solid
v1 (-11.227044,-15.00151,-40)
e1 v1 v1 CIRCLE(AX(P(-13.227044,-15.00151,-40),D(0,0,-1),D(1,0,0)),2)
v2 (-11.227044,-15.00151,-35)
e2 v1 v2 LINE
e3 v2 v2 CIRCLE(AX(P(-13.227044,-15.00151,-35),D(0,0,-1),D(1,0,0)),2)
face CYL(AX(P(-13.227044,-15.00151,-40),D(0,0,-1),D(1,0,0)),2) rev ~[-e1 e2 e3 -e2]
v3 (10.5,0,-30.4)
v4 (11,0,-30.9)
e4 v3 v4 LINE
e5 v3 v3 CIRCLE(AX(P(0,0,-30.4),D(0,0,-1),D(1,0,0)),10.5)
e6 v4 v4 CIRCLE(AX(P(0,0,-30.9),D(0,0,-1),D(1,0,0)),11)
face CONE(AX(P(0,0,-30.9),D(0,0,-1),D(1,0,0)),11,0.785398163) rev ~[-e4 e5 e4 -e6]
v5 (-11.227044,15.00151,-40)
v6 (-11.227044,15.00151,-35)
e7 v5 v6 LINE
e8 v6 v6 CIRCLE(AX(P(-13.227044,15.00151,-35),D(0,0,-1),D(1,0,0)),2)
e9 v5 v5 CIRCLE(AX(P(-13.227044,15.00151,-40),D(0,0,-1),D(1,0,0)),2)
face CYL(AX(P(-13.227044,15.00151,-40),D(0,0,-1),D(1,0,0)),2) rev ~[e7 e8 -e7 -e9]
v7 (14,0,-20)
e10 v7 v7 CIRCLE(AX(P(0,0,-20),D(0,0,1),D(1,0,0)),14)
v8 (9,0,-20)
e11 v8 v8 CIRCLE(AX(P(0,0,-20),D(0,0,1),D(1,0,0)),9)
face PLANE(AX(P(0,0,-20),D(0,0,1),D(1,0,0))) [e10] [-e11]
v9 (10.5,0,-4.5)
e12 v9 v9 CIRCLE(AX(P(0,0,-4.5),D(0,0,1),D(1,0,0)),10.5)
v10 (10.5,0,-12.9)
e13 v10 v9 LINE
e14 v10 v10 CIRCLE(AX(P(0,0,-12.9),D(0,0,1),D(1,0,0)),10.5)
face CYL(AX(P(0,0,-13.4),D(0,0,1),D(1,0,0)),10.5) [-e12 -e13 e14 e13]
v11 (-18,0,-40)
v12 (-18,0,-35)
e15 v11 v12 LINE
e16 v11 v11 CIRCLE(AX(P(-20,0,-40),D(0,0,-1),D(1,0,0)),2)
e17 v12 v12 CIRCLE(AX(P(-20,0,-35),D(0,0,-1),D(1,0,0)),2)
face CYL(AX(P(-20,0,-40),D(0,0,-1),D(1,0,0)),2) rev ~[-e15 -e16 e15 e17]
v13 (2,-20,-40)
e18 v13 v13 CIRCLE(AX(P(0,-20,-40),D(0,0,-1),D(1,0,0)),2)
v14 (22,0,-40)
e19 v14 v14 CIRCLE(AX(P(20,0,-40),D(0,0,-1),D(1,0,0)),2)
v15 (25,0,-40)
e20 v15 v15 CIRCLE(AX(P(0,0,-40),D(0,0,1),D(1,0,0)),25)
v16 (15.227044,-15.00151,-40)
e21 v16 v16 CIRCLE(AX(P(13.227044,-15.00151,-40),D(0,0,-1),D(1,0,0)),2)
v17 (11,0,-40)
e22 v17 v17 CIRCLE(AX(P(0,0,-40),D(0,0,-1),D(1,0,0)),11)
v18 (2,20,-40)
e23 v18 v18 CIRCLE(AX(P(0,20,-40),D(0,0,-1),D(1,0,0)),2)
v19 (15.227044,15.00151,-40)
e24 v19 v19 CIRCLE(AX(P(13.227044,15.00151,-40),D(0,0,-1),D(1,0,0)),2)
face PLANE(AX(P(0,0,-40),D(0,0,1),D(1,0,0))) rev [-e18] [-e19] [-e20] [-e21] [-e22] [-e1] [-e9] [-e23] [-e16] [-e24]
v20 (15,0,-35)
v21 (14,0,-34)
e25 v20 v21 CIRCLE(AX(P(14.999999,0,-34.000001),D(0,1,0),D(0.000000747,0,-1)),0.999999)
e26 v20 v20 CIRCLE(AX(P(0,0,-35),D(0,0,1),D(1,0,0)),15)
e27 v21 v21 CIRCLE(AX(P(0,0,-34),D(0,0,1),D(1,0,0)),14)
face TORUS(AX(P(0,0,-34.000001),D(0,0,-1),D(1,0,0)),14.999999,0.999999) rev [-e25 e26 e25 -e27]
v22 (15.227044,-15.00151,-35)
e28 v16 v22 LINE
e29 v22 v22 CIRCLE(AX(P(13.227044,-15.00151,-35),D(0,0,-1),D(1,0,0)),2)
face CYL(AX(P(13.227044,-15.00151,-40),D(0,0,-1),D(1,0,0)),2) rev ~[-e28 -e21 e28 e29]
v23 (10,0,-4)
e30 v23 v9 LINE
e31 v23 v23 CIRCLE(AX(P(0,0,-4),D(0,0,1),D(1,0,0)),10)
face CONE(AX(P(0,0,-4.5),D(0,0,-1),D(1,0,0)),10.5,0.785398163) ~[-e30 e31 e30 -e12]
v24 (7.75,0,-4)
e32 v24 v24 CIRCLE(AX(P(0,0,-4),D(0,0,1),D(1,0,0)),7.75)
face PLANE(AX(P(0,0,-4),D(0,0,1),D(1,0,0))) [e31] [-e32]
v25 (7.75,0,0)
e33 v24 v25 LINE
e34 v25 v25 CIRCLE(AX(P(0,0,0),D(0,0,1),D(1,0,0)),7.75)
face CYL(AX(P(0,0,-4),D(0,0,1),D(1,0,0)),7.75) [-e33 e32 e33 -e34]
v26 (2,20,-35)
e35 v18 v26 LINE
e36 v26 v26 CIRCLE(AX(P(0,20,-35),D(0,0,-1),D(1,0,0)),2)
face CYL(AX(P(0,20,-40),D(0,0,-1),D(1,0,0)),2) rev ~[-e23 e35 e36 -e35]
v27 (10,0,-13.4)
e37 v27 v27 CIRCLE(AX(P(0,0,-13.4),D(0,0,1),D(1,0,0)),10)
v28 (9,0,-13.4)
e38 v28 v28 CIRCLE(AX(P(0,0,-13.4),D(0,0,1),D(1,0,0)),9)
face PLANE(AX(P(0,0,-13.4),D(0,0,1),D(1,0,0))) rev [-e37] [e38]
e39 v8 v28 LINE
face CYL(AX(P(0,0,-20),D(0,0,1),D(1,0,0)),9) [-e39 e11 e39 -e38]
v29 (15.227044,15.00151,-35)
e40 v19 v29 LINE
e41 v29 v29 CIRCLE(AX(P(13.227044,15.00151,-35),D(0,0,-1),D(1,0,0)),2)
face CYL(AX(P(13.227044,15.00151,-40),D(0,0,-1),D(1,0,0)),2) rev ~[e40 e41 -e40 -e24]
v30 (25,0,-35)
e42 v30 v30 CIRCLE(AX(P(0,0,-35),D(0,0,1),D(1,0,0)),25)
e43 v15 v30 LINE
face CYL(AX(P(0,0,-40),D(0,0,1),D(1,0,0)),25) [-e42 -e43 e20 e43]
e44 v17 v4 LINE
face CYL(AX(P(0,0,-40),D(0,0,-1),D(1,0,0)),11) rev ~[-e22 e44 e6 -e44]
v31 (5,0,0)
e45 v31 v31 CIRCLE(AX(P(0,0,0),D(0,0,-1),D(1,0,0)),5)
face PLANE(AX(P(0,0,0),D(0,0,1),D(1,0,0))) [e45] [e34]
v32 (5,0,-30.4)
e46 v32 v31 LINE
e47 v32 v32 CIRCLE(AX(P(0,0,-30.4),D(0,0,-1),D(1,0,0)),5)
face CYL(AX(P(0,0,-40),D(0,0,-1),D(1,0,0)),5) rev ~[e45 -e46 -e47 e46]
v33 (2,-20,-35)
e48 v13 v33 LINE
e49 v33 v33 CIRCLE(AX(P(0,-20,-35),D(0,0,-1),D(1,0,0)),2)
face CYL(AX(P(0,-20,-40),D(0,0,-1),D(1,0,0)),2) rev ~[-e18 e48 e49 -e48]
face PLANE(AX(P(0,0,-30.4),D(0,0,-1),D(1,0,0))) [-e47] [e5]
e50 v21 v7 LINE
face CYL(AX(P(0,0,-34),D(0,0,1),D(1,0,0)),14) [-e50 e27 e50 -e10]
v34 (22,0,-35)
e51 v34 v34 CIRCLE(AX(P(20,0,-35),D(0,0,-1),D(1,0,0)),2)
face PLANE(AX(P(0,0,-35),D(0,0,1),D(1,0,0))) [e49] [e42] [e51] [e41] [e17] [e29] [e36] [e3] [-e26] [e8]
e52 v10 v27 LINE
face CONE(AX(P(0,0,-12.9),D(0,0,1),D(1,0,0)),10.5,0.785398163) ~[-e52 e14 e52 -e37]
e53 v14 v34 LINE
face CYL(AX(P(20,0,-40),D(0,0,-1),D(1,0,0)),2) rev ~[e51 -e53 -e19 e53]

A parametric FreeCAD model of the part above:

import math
import FreeCAD as App
import Part
import Sketcher

V = App.Vector
Q = App.Units.Quantity


def edges_at(feature, points):
    """Names of the edges that pass closest to the given points."""
    edges = feature.Shape.Edges
    near = lambda p: min(range(len(edges)), key=lambda i: edges[i].distToShape(Part.Vertex(*p))[0])
    return sorted({f"Edge{near(p) + 1}" for p in points})

doc = App.newDocument("Part")
body = doc.addObject("PartDesign::Body", "Body")

# Sketch on XZ plane
sketch1 = doc.addObject("Sketcher::SketchObject", "Sketch")
body.addObject(sketch1)
sketch1.AttachmentSupport = (doc.XZ_Plane, [""])
sketch1.MapMode = "FlatFace"
sketch1.addGeometry(Part.LineSegment(V(7.8, 0, 0), V(0, 0, 0)), False)
sketch1.addGeometry(Part.LineSegment(V(0, 0, 0), V(0, -40, 0)), False)
sketch1.addGeometry(Part.LineSegment(V(0, -40, 0), V(25, -40, 0)), False)
sketch1.addGeometry(Part.LineSegment(V(25, -40, 0), V(25, -35, 0)), False)
sketch1.addGeometry(Part.LineSegment(V(25, -35, 0), V(15, -35, 0)), False)
sketch1.addGeometry(Part.ArcOfCircle(Part.Circle(V(15, -34, 0), V(0, 0, 1), 1), math.radians(180), math.radians(270)), False)
sketch1.addGeometry(Part.LineSegment(V(14, -34, 0), V(14, -20, 0)), False)
sketch1.addGeometry(Part.LineSegment(V(14, -20, 0), V(9, -20, 0)), False)
sketch1.addGeometry(Part.LineSegment(V(9, -20, 0), V(9, -13.4, 0)), False)
sketch1.addGeometry(Part.LineSegment(V(9, -13.4, 0), V(10.5, -13.4, 0)), False)
sketch1.addGeometry(Part.LineSegment(V(10.5, -13.4, 0), V(10.5, -4, 0)), False)
sketch1.addGeometry(Part.LineSegment(V(10.5, -4, 0), V(7.8, -4, 0)), False)
sketch1.addGeometry(Part.LineSegment(V(7.8, -4, 0), V(7.8, 0, 0)), False)
sketch1.addConstraint(Sketcher.Constraint("Coincident", 0, 2, 1, 1))
sketch1.addConstraint(Sketcher.Constraint("Coincident", 1, 2, 2, 1))
sketch1.addConstraint(Sketcher.Constraint("Coincident", 2, 2, 3, 1))
sketch1.addConstraint(Sketcher.Constraint("Coincident", 3, 2, 4, 1))
sketch1.addConstraint(Sketcher.Constraint("Tangent", 4, 2, 5, 2))
sketch1.addConstraint(Sketcher.Constraint("Tangent", 5, 1, 6, 1))
sketch1.addConstraint(Sketcher.Constraint("Coincident", 6, 2, 7, 1))
sketch1.addConstraint(Sketcher.Constraint("Coincident", 7, 2, 8, 1))
sketch1.addConstraint(Sketcher.Constraint("Coincident", 8, 2, 9, 1))
sketch1.addConstraint(Sketcher.Constraint("Coincident", 9, 2, 10, 1))
sketch1.addConstraint(Sketcher.Constraint("Coincident", 10, 2, 11, 1))
sketch1.addConstraint(Sketcher.Constraint("Coincident", 11, 2, 12, 1))
sketch1.addConstraint(Sketcher.Constraint("Coincident", 12, 2, 0, 1))
sketch1.addConstraint(Sketcher.Constraint("Horizontal", 0))
sketch1.addConstraint(Sketcher.Constraint("Vertical", 1))
sketch1.addConstraint(Sketcher.Constraint("Horizontal", 2))
sketch1.addConstraint(Sketcher.Constraint("Vertical", 3))
sketch1.addConstraint(Sketcher.Constraint("Horizontal", 4))
sketch1.addConstraint(Sketcher.Constraint("Vertical", 6))
sketch1.addConstraint(Sketcher.Constraint("Horizontal", 7))
sketch1.addConstraint(Sketcher.Constraint("Vertical", 8))
sketch1.addConstraint(Sketcher.Constraint("Horizontal", 9))
sketch1.addConstraint(Sketcher.Constraint("Vertical", 10))
sketch1.addConstraint(Sketcher.Constraint("Horizontal", 11))
sketch1.addConstraint(Sketcher.Constraint("Vertical", 12))
sketch1.addConstraint(Sketcher.Constraint("Coincident", 0, 2, -1, 1))
sketch1.addConstraint(Sketcher.Constraint("Equal", 7, 3))
sketch1.addConstraint(Sketcher.Constraint("Radius", 5, Q("0.999999 mm")))
sketch1.addConstraint(Sketcher.Constraint("DistanceX", 2, 1, 2, 2, Q("25 mm")))
sketch1.addConstraint(Sketcher.Constraint("DistanceX", 4, 2, 4, 1, Q("10 mm")))
sketch1.addConstraint(Sketcher.Constraint("DistanceX", 7, 2, 7, 1, Q("5 mm")))
sketch1.addConstraint(Sketcher.Constraint("DistanceY", 1, 2, 1, 1, Q("40 mm")))
sketch1.addConstraint(Sketcher.Constraint("DistanceY", 6, 1, 6, 2, Q("14 mm")))
sketch1.addConstraint(Sketcher.Constraint("DistanceY", 12, 1, 12, 2, Q("4 mm")))
sketch1.addConstraint(Sketcher.Constraint("DistanceX", 9, 1, 9, 2, Q("1.5 mm")))
sketch1.addConstraint(Sketcher.Constraint("DistanceY", 8, 1, 8, 2, Q("6.6 mm")))
sketch1.addConstraint(Sketcher.Constraint("DistanceX", 0, 2, 0, 1, Q("7.75 mm")))
revolution = doc.addObject("PartDesign::Revolution", "Revolution")
body.addObject(revolution)
revolution.Profile = sketch1
revolution.ReferenceAxis = (sketch1, ["V_Axis"])
revolution.Angle = 360

# Sketch on XY plane
sketch2 = doc.addObject("Sketcher::SketchObject", "Sketch001")
body.addObject(sketch2)
sketch2.AttachmentSupport = (doc.XY_Plane, [""])
sketch2.MapMode = "FlatFace"
sketch2.AttachmentOffset = App.Placement(V(0, 0, -40), App.Rotation())
sketch2.addGeometry(Part.Circle(V(0, 0, 0), V(0, 0, 1), 5), False)
sketch2.addConstraint(Sketcher.Constraint("Coincident", 0, 3, -1, 1))
sketch2.addConstraint(Sketcher.Constraint("Diameter", 0, Q("10 mm")))
pocket1 = doc.addObject("PartDesign::Pocket", "Pocket")
body.addObject(pocket1)
pocket1.Profile = sketch2
pocket1.Length = 40
pocket1.Reversed = True

# Sketch on XY plane
sketch3 = doc.addObject("Sketcher::SketchObject", "Sketch002")
body.addObject(sketch3)
sketch3.AttachmentSupport = (doc.XY_Plane, [""])
sketch3.MapMode = "FlatFace"
sketch3.AttachmentOffset = App.Placement(V(0, 0, -40), App.Rotation())
sketch3.addGeometry(Part.Circle(V(0, 0, 0), V(0, 0, 1), 11), False)
sketch3.addGeometry(Part.Circle(V(0, 0, 0), V(0, 0, 1), 5), False)
sketch3.addConstraint(Sketcher.Constraint("Coincident", 0, 3, -1, 1))
sketch3.addConstraint(Sketcher.Constraint("Coincident", 1, 3, -1, 1))
sketch3.addConstraint(Sketcher.Constraint("Diameter", 0, Q("22 mm")))
sketch3.addConstraint(Sketcher.Constraint("Diameter", 1, Q("10 mm")))
pocket2 = doc.addObject("PartDesign::Pocket", "Pocket001")
body.addObject(pocket2)
pocket2.Profile = sketch3
pocket2.Length = 9.6
pocket2.Reversed = True

# Sketch on XY plane
sketch4 = doc.addObject("Sketcher::SketchObject", "Sketch003")
body.addObject(sketch4)
sketch4.AttachmentSupport = (doc.XY_Plane, [""])
sketch4.MapMode = "FlatFace"
sketch4.AttachmentOffset = App.Placement(V(0, 0, -40), App.Rotation())
sketch4.addGeometry(Part.Circle(V(-13.2, -15, 0), V(0, 0, 1), 2), False)
sketch4.addGeometry(Part.Circle(V(0, -20, 0), V(0, 0, 1), 2), False)
sketch4.addGeometry(Part.Circle(V(13.2, -15, 0), V(0, 0, 1), 2), False)
sketch4.addGeometry(Part.Circle(V(20, 0, 0), V(0, 0, 1), 2), False)
sketch4.addGeometry(Part.Circle(V(13.2, 15, 0), V(0, 0, 1), 2), False)
sketch4.addGeometry(Part.Circle(V(0, 20, 0), V(0, 0, 1), 2), False)
sketch4.addGeometry(Part.Circle(V(-13.2, 15, 0), V(0, 0, 1), 2), False)
sketch4.addGeometry(Part.Circle(V(-20, 0, 0), V(0, 0, 1), 2), False)
sketch4.addConstraint(Sketcher.Constraint("Equal", 0, 1))
sketch4.addConstraint(Sketcher.Constraint("Equal", 1, 2))
sketch4.addConstraint(Sketcher.Constraint("Equal", 2, 3))
sketch4.addConstraint(Sketcher.Constraint("Equal", 3, 4))
sketch4.addConstraint(Sketcher.Constraint("Equal", 4, 5))
sketch4.addConstraint(Sketcher.Constraint("Equal", 5, 6))
sketch4.addConstraint(Sketcher.Constraint("Equal", 6, 7))
sketch4.addConstraint(Sketcher.Constraint("Symmetric", 0, 3, 4, 3, -1, 1))
sketch4.addConstraint(Sketcher.Constraint("Symmetric", 1, 3, 5, 3, -1, 1))
sketch4.addConstraint(Sketcher.Constraint("Symmetric", 2, 3, 6, 3, -1, 1))
sketch4.addConstraint(Sketcher.Constraint("Symmetric", 3, 3, 7, 3, -1, 1))
sketch4.addConstraint(Sketcher.Constraint("Symmetric", 0, 3, 2, 3, -2))
sketch4.addConstraint(Sketcher.Constraint("PointOnObject", 1, 3, -2))
sketch4.addConstraint(Sketcher.Constraint("PointOnObject", 3, 3, -1))
sketch4.addConstraint(Sketcher.Constraint("Diameter", 0, Q("4 mm")))
sketch4.addConstraint(Sketcher.Constraint("DistanceY", 1, 3, -1, 1, Q("20 mm")))
sketch4.addConstraint(Sketcher.Constraint("DistanceX", -1, 1, 3, 3, Q("20 mm")))
sketch4.addConstraint(Sketcher.Constraint("DistanceY", 0, 3, -1, 1, Q("15.00151 mm")))
sketch4.addConstraint(Sketcher.Constraint("DistanceX", 0, 3, -1, 1, Q("13.227044 mm")))
pocket3 = doc.addObject("PartDesign::Pocket", "Pocket002")
body.addObject(pocket3)
pocket3.Profile = sketch4
pocket3.Length = 5
pocket3.Reversed = True
doc.recompute()

chamfer = doc.addObject("PartDesign::Chamfer", "Chamfer")
body.addObject(chamfer)
chamfer.Base = (pocket3, edges_at(pocket3, [(-10.5, 0, -13.4), (-10.5, 0, -4), (-11, 0, -30.4)]))
chamfer.Size = 0.5

doc.recompute()
